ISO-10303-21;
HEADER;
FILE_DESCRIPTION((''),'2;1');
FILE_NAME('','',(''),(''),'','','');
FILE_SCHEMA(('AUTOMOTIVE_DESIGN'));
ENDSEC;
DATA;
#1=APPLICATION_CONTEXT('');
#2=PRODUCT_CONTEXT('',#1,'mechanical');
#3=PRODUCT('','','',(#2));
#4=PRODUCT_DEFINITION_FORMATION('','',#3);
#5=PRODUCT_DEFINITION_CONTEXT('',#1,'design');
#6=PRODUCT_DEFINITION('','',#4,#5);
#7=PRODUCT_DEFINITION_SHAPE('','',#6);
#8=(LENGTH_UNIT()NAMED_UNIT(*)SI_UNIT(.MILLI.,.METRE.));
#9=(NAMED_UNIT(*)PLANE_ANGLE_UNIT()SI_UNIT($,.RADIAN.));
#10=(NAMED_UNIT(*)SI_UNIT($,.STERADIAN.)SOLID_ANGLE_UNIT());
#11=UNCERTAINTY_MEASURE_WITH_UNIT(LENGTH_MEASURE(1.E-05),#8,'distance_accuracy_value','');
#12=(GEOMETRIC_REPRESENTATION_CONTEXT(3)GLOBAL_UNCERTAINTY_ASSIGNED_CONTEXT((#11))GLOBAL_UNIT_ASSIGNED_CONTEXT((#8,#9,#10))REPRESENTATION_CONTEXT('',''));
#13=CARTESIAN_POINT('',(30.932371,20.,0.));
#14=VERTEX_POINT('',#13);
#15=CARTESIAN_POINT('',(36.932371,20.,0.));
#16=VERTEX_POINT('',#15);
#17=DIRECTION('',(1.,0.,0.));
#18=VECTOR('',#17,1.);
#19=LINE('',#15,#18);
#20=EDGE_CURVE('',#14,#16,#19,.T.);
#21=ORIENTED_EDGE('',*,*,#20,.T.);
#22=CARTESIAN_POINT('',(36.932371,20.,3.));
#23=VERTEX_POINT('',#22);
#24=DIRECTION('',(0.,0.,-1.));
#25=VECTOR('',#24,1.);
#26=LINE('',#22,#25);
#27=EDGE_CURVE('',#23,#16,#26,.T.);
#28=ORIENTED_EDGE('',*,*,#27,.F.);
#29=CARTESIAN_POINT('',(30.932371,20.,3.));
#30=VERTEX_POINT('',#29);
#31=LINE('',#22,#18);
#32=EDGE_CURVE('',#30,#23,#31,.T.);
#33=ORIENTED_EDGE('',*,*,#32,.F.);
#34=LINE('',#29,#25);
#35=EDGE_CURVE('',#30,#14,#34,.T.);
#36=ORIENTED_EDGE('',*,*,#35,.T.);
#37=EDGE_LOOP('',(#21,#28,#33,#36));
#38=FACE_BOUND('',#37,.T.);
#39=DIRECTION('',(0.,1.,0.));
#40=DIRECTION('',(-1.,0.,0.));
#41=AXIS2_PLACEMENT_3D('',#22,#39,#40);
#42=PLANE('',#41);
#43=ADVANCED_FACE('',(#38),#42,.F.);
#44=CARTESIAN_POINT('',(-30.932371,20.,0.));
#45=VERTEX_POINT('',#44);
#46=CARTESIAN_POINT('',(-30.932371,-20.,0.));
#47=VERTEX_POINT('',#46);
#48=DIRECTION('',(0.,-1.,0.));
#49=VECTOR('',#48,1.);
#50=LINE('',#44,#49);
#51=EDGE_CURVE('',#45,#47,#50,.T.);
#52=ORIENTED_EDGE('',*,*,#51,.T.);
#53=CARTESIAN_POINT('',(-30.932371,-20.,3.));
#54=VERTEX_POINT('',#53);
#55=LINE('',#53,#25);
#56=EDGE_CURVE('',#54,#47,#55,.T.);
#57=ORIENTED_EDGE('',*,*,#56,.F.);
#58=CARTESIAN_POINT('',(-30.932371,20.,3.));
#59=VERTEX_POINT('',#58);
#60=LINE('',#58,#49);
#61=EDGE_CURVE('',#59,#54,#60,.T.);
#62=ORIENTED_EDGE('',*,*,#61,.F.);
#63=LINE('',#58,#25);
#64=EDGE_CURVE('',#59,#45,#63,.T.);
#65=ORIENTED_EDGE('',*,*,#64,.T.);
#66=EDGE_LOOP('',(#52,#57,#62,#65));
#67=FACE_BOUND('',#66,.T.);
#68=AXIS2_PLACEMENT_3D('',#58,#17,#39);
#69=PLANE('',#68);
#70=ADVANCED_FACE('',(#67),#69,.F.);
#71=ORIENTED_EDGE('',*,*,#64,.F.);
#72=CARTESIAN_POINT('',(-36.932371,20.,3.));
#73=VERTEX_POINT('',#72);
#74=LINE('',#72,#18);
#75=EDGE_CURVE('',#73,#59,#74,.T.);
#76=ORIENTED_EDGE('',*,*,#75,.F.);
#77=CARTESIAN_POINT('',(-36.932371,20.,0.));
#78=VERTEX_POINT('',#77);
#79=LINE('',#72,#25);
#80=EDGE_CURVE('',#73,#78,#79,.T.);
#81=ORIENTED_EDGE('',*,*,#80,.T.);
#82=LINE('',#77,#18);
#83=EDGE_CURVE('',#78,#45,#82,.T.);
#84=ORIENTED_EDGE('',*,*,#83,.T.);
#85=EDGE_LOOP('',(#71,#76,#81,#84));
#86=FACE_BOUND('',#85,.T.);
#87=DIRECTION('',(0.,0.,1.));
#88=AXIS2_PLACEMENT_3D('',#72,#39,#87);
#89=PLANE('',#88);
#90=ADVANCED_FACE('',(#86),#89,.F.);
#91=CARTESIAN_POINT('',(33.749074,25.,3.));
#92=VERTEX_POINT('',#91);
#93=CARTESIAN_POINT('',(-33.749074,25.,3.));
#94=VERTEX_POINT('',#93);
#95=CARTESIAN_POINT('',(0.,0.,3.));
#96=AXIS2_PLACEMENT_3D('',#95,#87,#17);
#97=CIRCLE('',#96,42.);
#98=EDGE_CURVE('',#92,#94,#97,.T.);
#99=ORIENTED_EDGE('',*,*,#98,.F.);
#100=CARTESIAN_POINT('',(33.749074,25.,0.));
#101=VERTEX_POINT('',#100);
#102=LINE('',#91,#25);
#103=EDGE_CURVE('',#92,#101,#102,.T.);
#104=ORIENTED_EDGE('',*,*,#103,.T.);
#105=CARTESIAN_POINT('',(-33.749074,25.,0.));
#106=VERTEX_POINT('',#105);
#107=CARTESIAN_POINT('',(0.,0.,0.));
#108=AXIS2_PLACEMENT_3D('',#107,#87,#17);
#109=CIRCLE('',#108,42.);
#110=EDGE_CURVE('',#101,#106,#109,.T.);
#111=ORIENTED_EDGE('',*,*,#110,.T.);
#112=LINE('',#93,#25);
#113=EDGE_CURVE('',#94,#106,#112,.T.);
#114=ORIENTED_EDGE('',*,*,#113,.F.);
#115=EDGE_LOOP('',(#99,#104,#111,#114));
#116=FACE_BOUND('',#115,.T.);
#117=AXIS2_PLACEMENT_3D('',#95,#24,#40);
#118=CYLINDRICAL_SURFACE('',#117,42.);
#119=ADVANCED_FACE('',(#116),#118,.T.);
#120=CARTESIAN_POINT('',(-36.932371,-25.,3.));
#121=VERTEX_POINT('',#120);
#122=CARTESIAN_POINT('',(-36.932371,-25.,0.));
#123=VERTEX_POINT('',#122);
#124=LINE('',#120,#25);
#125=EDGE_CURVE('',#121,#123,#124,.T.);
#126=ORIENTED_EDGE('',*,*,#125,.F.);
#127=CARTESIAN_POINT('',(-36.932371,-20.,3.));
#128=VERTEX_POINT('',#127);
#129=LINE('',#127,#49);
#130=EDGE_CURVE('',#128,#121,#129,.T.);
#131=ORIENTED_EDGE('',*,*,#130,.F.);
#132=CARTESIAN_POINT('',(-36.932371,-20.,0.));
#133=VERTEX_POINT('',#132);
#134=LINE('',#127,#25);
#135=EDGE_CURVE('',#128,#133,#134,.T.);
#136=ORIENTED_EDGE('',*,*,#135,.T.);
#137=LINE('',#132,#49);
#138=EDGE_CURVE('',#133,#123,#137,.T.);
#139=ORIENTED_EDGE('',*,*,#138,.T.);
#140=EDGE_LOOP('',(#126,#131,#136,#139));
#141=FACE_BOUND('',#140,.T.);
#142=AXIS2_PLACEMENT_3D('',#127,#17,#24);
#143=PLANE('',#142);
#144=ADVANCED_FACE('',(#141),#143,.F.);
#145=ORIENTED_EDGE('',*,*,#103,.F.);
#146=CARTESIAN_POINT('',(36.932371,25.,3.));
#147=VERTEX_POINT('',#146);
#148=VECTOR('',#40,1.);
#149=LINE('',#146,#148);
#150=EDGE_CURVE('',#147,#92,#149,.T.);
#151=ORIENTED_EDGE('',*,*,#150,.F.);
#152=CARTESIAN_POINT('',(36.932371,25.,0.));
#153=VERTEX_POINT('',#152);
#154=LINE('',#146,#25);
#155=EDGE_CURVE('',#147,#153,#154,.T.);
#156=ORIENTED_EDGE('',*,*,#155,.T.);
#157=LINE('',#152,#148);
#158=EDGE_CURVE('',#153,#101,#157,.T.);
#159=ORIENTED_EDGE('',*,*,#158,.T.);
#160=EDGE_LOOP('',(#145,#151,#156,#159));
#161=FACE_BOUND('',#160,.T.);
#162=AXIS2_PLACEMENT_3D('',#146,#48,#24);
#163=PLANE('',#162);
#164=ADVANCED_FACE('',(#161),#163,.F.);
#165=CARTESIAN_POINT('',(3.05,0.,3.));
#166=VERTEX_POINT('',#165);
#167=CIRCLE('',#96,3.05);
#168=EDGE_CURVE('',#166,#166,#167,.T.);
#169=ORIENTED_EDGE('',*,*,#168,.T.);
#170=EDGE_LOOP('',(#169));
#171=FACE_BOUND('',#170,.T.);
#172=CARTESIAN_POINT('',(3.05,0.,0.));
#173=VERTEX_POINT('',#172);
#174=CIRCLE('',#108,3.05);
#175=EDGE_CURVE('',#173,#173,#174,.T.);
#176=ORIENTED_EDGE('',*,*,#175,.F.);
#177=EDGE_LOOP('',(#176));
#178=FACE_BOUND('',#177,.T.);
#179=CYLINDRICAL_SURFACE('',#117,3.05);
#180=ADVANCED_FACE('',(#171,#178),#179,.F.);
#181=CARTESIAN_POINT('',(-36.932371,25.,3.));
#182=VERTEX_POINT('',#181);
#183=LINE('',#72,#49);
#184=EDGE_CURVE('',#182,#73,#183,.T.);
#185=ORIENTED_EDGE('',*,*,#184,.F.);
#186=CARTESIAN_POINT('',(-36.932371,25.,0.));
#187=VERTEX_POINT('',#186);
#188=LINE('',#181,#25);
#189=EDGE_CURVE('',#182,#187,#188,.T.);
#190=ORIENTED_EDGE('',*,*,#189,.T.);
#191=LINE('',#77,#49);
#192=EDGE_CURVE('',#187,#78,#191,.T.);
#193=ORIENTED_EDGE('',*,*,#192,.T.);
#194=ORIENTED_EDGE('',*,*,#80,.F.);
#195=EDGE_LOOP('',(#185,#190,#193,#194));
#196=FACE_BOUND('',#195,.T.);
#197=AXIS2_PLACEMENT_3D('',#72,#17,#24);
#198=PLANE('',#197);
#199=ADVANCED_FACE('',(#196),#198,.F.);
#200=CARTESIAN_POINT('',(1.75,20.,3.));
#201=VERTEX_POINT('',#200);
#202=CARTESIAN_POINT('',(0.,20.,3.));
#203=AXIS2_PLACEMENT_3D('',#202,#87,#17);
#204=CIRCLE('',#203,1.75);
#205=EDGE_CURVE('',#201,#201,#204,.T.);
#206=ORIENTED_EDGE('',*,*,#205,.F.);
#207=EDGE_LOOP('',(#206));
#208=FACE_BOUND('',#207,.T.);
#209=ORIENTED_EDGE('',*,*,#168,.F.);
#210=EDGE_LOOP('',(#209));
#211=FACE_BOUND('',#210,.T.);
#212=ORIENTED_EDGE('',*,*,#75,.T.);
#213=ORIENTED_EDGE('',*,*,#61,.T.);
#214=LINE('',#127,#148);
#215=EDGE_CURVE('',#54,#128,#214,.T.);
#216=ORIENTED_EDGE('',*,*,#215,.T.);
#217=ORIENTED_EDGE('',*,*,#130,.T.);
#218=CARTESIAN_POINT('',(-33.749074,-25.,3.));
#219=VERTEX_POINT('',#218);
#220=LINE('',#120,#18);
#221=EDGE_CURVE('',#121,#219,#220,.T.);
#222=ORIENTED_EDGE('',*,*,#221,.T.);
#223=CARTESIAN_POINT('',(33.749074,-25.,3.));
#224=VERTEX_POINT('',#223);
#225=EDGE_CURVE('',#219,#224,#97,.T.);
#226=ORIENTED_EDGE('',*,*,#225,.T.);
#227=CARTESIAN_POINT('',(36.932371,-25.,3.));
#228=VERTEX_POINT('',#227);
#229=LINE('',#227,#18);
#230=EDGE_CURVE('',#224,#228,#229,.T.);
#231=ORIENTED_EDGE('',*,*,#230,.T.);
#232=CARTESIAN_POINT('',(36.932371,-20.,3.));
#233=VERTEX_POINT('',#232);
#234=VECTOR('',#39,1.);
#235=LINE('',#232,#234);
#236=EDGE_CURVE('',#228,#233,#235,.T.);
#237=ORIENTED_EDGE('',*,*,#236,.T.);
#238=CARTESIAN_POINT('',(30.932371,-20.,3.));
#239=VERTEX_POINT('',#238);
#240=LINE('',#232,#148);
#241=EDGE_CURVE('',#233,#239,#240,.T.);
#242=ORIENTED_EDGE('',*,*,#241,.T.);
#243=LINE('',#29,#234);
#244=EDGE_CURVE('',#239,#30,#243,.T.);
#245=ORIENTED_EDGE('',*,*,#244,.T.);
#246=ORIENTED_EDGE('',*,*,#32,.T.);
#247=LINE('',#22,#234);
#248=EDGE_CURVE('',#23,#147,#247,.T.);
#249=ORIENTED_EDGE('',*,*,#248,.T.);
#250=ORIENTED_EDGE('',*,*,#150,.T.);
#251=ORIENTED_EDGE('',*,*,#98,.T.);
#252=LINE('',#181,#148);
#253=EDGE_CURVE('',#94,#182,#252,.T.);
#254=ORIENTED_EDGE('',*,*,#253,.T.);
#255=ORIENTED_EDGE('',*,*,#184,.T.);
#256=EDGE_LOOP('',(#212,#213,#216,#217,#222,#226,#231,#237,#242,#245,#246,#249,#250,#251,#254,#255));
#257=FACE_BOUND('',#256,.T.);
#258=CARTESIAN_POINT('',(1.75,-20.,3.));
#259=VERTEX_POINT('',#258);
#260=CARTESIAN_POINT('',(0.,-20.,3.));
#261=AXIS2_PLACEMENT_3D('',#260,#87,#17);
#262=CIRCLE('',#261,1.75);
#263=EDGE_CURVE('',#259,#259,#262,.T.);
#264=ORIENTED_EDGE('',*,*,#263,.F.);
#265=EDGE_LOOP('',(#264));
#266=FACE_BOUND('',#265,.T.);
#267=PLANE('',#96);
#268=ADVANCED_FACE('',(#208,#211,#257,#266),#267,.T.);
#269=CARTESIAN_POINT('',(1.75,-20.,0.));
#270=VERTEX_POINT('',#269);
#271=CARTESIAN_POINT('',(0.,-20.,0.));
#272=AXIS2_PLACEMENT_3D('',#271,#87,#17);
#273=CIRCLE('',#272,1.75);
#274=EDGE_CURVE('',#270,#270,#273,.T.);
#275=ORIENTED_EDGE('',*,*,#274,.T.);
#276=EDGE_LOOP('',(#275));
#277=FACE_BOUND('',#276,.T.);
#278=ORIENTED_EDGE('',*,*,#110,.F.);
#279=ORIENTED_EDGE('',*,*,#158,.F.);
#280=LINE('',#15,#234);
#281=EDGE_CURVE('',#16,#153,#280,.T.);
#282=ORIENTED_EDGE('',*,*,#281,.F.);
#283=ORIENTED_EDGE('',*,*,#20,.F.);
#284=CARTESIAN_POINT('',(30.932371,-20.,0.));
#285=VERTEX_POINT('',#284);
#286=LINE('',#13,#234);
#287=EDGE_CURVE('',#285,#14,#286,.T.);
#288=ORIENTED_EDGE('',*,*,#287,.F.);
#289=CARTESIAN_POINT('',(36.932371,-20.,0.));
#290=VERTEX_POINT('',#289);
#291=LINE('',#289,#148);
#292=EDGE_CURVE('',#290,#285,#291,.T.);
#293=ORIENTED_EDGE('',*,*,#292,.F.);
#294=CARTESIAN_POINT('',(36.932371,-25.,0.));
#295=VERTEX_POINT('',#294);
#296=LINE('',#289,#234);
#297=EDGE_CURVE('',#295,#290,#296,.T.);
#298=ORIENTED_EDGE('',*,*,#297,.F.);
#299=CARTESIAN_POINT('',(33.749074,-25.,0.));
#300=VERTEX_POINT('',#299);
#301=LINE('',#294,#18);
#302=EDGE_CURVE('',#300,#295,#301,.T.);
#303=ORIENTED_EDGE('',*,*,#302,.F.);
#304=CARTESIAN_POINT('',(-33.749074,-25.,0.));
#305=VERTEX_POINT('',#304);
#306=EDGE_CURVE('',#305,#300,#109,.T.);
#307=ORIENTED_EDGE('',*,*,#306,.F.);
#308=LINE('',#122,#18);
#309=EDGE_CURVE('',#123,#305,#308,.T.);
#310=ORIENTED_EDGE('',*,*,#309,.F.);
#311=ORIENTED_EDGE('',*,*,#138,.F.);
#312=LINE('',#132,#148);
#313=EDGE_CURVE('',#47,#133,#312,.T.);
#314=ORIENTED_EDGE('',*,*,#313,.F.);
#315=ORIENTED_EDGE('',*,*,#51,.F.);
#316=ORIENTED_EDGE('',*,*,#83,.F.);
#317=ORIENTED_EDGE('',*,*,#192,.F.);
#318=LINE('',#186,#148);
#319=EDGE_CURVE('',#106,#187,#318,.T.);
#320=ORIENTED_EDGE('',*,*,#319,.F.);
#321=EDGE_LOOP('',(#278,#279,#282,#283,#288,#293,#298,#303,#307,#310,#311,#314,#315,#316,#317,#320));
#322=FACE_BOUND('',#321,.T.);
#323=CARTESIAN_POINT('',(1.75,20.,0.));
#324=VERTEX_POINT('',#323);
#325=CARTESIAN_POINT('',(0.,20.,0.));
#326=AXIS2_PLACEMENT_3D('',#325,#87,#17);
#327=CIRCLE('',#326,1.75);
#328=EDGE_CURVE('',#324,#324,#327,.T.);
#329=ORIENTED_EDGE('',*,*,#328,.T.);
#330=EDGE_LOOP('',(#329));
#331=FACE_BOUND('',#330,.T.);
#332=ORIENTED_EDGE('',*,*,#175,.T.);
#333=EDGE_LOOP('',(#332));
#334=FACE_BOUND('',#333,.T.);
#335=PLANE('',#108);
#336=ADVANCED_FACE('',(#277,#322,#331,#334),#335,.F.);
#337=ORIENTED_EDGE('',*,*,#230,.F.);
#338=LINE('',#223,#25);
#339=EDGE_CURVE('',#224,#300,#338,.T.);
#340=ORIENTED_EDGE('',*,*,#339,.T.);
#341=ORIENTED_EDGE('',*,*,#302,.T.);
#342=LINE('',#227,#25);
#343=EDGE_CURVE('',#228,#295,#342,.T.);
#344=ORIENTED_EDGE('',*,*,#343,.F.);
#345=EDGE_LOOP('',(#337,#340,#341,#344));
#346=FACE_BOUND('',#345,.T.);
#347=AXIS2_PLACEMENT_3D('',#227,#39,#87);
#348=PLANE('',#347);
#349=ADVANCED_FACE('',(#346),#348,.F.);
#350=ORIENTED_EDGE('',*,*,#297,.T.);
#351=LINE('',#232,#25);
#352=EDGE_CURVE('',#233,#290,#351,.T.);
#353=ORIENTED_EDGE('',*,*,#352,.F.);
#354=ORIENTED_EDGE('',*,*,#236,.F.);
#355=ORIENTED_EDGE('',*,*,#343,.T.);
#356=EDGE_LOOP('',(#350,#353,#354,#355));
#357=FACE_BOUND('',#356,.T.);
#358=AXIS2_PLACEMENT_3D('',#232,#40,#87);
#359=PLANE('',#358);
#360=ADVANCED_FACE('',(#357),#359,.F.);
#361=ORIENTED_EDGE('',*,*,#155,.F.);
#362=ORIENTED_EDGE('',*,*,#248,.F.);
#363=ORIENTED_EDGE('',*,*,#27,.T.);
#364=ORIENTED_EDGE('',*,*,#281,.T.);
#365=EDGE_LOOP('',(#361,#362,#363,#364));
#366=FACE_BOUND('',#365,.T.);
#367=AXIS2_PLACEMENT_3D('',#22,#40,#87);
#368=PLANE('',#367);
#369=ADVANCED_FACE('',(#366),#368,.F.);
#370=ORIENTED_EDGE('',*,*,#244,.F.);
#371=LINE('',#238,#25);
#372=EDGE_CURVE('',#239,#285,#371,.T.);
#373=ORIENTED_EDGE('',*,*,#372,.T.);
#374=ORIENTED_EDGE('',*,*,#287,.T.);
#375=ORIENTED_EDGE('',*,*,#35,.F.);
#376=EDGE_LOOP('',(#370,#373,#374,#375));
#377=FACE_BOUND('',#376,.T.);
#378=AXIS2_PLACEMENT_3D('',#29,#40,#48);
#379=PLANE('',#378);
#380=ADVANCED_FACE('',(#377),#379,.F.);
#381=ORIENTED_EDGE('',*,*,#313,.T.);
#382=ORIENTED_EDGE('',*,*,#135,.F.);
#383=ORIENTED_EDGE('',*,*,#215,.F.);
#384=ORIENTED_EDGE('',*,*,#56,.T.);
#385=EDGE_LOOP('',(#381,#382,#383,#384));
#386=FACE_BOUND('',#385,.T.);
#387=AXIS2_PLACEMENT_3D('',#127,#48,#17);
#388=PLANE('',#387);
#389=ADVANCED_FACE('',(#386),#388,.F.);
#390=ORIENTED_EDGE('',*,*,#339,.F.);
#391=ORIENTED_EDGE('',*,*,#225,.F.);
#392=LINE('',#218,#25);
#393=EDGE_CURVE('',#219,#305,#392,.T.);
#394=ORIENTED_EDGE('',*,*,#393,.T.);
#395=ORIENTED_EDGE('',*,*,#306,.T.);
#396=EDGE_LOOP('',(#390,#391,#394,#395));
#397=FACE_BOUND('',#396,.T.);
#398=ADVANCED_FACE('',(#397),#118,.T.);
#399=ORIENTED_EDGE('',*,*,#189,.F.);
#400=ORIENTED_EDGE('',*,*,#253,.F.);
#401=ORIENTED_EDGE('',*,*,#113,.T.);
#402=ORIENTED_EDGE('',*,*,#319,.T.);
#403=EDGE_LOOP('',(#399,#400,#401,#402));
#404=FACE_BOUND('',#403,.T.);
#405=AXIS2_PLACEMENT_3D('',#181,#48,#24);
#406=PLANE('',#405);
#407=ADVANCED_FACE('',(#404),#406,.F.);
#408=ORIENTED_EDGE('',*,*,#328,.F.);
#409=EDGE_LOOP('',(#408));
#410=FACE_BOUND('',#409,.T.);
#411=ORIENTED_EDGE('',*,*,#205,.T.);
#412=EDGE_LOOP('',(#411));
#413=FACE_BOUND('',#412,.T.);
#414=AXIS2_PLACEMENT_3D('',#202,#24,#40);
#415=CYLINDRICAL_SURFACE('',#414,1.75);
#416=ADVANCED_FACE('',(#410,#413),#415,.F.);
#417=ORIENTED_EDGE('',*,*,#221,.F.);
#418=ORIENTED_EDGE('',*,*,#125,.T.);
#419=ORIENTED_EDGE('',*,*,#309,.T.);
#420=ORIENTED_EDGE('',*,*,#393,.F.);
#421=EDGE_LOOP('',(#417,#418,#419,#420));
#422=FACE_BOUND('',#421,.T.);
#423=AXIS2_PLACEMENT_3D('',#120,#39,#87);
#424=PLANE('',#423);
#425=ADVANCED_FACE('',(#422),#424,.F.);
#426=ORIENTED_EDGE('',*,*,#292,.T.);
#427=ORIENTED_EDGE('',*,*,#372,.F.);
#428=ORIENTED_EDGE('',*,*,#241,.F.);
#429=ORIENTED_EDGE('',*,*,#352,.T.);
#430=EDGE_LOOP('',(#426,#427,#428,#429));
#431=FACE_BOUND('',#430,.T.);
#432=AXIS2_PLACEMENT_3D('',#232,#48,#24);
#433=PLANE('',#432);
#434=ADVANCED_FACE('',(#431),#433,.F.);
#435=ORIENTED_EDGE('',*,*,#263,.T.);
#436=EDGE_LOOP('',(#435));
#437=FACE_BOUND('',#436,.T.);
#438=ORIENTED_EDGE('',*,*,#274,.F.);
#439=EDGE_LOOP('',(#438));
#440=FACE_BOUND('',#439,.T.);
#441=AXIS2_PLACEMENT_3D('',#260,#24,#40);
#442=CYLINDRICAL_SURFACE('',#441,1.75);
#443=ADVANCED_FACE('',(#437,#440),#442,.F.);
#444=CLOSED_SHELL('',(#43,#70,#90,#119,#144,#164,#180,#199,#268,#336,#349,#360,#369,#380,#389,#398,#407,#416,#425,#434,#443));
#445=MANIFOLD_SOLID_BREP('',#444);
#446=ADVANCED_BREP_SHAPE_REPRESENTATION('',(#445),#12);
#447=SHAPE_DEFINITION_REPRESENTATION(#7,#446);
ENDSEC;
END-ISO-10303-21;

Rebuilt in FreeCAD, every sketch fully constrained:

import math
import FreeCAD as App
import Part
import Sketcher

V = App.Vector

doc = App.newDocument("Part")
body = doc.addObject("PartDesign::Body", "Body")

# Sketch on XY plane
sketch1 = body.newObject("Sketcher::SketchObject", "Sketch")
sketch1.AttachmentSupport = (doc.getObject("XY_Plane"), [""])
sketch1.MapMode = "FlatFace"
sketch1.addGeometry([
    Part.LineSegment(V(-36.9, 20, 0), V(-30.9, 20, 0)),  # 0
    Part.LineSegment(V(-30.9, 20, 0), V(-30.9, -20, 0)),  # 1
    Part.LineSegment(V(-30.9, -20, 0), V(-36.9, -20, 0)),  # 2
    Part.LineSegment(V(-36.9, -20, 0), V(-36.9, -25, 0)),  # 3
    Part.LineSegment(V(-36.9, -25, 0), V(-33.7, -25, 0)),  # 4
    Part.ArcOfCircle(Part.Circle(V(0, 0, 0), V(0, 0, 1), 42), math.radians(-143), math.radians(-37)),  # 5
    Part.LineSegment(V(33.7, -25, 0), V(36.9, -25, 0)),  # 6
    Part.LineSegment(V(36.9, -25, 0), V(36.9, -20, 0)),  # 7
    Part.LineSegment(V(36.9, -20, 0), V(30.9, -20, 0)),  # 8
    Part.LineSegment(V(30.9, -20, 0), V(30.9, 20, 0)),  # 9
    Part.LineSegment(V(30.9, 20, 0), V(36.9, 20, 0)),  # 10
    Part.LineSegment(V(36.9, 20, 0), V(36.9, 25, 0)),  # 11
    Part.LineSegment(V(36.9, 25, 0), V(33.7, 25, 0)),  # 12
    Part.ArcOfCircle(Part.Circle(V(0, 0, 0), V(0, 0, 1), 42), math.radians(37), math.radians(143)),  # 13
    Part.LineSegment(V(-33.7, 25, 0), V(-36.9, 25, 0)),  # 14
    Part.LineSegment(V(-36.9, 25, 0), V(-36.9, 20, 0)),  # 15
    Part.Circle(V(0, -20, 0), V(0, 0, 1), 1.8),  # 16
    Part.Circle(V(0, 0, 0), V(0, 0, 1), 3),  # 17
    Part.Circle(V(0, 20, 0), V(0, 0, 1), 1.8),  # 18
], False)
sketch1.addConstraint([
    Sketcher.Constraint("Coincident", 0, 2, 1, 1),
    Sketcher.Constraint("Coincident", 1, 2, 2, 1),
    Sketcher.Constraint("Coincident", 2, 2, 3, 1),
    Sketcher.Constraint("Coincident", 3, 2, 4, 1),
    Sketcher.Constraint("Coincident", 4, 2, 5, 1),
    Sketcher.Constraint("Coincident", 5, 2, 6, 1),
    Sketcher.Constraint("Coincident", 6, 2, 7, 1),
    Sketcher.Constraint("Coincident", 7, 2, 8, 1),
    Sketcher.Constraint("Coincident", 8, 2, 9, 1),
    Sketcher.Constraint("Coincident", 9, 2, 10, 1),
    Sketcher.Constraint("Coincident", 10, 2, 11, 1),
    Sketcher.Constraint("Coincident", 11, 2, 12, 1),
    Sketcher.Constraint("Coincident", 12, 2, 13, 1),
    Sketcher.Constraint("Coincident", 13, 2, 14, 1),
    Sketcher.Constraint("Coincident", 14, 2, 15, 1),
    Sketcher.Constraint("Coincident", 15, 2, 0, 1),
    Sketcher.Constraint("Horizontal", 0),
    Sketcher.Constraint("Vertical", 1),
    Sketcher.Constraint("Horizontal", 2),
    Sketcher.Constraint("Vertical", 3),
    Sketcher.Constraint("Horizontal", 4),
    Sketcher.Constraint("Horizontal", 6),
    Sketcher.Constraint("Vertical", 7),
    Sketcher.Constraint("Horizontal", 8),
    Sketcher.Constraint("Vertical", 9),
    Sketcher.Constraint("Horizontal", 10),
    Sketcher.Constraint("Vertical", 11),
    Sketcher.Constraint("Horizontal", 12),
    Sketcher.Constraint("Horizontal", 14),
    Sketcher.Constraint("Vertical", 15),
    Sketcher.Constraint("Coincident", 5, 3, -1, 1),
    Sketcher.Constraint("Coincident", 13, 3, -1, 1),
    Sketcher.Constraint("Coincident", 17, 3, -1, 1),
    Sketcher.Constraint("Equal", 5, 13),
    Sketcher.Constraint("Equal", 16, 18),
    Sketcher.Constraint("Symmetric", 16, 3, 18, 3, -1, 1),
    Sketcher.Constraint("Symmetric", 0, 2, 8, 2, -1, 1),
    Sketcher.Constraint("Symmetric", 2, 2, 10, 2, -1, 1),
    Sketcher.Constraint("Symmetric", 6, 2, 14, 2, -1, 1),
    Sketcher.Constraint("Symmetric", 3, 2, 6, 2, -2),
    Sketcher.Constraint("PointOnObject", 16, 3, -2),
    Sketcher.Constraint("Horizontal", 18, 3, 0, 2),
    Sketcher.Constraint("Horizontal", 16, 3, 1, 2),
    Sketcher.Constraint("Horizontal", 12, 2, 13, 2),
    Sketcher.Constraint("Radius", 5, 42.0),
    Sketcher.Constraint("Diameter", 16, 3.5),
    Sketcher.Constraint("Diameter", 17, 6.1),
    Sketcher.Constraint("DistanceX", 0, 1, 0, 2, 6.0),
    Sketcher.Constraint("DistanceY", 1, 2, 1, 1, 40.0),
    Sketcher.Constraint("DistanceY", 3, 2, 3, 1, 5.0),
    Sketcher.Constraint("DistanceX", 4, 1, 4, 2, 3.183297),
])
pad1 = body.newObject("PartDesign::Pad", "Pad")
pad1.Profile = sketch1
pad1.Length = 3

doc.recompute()
